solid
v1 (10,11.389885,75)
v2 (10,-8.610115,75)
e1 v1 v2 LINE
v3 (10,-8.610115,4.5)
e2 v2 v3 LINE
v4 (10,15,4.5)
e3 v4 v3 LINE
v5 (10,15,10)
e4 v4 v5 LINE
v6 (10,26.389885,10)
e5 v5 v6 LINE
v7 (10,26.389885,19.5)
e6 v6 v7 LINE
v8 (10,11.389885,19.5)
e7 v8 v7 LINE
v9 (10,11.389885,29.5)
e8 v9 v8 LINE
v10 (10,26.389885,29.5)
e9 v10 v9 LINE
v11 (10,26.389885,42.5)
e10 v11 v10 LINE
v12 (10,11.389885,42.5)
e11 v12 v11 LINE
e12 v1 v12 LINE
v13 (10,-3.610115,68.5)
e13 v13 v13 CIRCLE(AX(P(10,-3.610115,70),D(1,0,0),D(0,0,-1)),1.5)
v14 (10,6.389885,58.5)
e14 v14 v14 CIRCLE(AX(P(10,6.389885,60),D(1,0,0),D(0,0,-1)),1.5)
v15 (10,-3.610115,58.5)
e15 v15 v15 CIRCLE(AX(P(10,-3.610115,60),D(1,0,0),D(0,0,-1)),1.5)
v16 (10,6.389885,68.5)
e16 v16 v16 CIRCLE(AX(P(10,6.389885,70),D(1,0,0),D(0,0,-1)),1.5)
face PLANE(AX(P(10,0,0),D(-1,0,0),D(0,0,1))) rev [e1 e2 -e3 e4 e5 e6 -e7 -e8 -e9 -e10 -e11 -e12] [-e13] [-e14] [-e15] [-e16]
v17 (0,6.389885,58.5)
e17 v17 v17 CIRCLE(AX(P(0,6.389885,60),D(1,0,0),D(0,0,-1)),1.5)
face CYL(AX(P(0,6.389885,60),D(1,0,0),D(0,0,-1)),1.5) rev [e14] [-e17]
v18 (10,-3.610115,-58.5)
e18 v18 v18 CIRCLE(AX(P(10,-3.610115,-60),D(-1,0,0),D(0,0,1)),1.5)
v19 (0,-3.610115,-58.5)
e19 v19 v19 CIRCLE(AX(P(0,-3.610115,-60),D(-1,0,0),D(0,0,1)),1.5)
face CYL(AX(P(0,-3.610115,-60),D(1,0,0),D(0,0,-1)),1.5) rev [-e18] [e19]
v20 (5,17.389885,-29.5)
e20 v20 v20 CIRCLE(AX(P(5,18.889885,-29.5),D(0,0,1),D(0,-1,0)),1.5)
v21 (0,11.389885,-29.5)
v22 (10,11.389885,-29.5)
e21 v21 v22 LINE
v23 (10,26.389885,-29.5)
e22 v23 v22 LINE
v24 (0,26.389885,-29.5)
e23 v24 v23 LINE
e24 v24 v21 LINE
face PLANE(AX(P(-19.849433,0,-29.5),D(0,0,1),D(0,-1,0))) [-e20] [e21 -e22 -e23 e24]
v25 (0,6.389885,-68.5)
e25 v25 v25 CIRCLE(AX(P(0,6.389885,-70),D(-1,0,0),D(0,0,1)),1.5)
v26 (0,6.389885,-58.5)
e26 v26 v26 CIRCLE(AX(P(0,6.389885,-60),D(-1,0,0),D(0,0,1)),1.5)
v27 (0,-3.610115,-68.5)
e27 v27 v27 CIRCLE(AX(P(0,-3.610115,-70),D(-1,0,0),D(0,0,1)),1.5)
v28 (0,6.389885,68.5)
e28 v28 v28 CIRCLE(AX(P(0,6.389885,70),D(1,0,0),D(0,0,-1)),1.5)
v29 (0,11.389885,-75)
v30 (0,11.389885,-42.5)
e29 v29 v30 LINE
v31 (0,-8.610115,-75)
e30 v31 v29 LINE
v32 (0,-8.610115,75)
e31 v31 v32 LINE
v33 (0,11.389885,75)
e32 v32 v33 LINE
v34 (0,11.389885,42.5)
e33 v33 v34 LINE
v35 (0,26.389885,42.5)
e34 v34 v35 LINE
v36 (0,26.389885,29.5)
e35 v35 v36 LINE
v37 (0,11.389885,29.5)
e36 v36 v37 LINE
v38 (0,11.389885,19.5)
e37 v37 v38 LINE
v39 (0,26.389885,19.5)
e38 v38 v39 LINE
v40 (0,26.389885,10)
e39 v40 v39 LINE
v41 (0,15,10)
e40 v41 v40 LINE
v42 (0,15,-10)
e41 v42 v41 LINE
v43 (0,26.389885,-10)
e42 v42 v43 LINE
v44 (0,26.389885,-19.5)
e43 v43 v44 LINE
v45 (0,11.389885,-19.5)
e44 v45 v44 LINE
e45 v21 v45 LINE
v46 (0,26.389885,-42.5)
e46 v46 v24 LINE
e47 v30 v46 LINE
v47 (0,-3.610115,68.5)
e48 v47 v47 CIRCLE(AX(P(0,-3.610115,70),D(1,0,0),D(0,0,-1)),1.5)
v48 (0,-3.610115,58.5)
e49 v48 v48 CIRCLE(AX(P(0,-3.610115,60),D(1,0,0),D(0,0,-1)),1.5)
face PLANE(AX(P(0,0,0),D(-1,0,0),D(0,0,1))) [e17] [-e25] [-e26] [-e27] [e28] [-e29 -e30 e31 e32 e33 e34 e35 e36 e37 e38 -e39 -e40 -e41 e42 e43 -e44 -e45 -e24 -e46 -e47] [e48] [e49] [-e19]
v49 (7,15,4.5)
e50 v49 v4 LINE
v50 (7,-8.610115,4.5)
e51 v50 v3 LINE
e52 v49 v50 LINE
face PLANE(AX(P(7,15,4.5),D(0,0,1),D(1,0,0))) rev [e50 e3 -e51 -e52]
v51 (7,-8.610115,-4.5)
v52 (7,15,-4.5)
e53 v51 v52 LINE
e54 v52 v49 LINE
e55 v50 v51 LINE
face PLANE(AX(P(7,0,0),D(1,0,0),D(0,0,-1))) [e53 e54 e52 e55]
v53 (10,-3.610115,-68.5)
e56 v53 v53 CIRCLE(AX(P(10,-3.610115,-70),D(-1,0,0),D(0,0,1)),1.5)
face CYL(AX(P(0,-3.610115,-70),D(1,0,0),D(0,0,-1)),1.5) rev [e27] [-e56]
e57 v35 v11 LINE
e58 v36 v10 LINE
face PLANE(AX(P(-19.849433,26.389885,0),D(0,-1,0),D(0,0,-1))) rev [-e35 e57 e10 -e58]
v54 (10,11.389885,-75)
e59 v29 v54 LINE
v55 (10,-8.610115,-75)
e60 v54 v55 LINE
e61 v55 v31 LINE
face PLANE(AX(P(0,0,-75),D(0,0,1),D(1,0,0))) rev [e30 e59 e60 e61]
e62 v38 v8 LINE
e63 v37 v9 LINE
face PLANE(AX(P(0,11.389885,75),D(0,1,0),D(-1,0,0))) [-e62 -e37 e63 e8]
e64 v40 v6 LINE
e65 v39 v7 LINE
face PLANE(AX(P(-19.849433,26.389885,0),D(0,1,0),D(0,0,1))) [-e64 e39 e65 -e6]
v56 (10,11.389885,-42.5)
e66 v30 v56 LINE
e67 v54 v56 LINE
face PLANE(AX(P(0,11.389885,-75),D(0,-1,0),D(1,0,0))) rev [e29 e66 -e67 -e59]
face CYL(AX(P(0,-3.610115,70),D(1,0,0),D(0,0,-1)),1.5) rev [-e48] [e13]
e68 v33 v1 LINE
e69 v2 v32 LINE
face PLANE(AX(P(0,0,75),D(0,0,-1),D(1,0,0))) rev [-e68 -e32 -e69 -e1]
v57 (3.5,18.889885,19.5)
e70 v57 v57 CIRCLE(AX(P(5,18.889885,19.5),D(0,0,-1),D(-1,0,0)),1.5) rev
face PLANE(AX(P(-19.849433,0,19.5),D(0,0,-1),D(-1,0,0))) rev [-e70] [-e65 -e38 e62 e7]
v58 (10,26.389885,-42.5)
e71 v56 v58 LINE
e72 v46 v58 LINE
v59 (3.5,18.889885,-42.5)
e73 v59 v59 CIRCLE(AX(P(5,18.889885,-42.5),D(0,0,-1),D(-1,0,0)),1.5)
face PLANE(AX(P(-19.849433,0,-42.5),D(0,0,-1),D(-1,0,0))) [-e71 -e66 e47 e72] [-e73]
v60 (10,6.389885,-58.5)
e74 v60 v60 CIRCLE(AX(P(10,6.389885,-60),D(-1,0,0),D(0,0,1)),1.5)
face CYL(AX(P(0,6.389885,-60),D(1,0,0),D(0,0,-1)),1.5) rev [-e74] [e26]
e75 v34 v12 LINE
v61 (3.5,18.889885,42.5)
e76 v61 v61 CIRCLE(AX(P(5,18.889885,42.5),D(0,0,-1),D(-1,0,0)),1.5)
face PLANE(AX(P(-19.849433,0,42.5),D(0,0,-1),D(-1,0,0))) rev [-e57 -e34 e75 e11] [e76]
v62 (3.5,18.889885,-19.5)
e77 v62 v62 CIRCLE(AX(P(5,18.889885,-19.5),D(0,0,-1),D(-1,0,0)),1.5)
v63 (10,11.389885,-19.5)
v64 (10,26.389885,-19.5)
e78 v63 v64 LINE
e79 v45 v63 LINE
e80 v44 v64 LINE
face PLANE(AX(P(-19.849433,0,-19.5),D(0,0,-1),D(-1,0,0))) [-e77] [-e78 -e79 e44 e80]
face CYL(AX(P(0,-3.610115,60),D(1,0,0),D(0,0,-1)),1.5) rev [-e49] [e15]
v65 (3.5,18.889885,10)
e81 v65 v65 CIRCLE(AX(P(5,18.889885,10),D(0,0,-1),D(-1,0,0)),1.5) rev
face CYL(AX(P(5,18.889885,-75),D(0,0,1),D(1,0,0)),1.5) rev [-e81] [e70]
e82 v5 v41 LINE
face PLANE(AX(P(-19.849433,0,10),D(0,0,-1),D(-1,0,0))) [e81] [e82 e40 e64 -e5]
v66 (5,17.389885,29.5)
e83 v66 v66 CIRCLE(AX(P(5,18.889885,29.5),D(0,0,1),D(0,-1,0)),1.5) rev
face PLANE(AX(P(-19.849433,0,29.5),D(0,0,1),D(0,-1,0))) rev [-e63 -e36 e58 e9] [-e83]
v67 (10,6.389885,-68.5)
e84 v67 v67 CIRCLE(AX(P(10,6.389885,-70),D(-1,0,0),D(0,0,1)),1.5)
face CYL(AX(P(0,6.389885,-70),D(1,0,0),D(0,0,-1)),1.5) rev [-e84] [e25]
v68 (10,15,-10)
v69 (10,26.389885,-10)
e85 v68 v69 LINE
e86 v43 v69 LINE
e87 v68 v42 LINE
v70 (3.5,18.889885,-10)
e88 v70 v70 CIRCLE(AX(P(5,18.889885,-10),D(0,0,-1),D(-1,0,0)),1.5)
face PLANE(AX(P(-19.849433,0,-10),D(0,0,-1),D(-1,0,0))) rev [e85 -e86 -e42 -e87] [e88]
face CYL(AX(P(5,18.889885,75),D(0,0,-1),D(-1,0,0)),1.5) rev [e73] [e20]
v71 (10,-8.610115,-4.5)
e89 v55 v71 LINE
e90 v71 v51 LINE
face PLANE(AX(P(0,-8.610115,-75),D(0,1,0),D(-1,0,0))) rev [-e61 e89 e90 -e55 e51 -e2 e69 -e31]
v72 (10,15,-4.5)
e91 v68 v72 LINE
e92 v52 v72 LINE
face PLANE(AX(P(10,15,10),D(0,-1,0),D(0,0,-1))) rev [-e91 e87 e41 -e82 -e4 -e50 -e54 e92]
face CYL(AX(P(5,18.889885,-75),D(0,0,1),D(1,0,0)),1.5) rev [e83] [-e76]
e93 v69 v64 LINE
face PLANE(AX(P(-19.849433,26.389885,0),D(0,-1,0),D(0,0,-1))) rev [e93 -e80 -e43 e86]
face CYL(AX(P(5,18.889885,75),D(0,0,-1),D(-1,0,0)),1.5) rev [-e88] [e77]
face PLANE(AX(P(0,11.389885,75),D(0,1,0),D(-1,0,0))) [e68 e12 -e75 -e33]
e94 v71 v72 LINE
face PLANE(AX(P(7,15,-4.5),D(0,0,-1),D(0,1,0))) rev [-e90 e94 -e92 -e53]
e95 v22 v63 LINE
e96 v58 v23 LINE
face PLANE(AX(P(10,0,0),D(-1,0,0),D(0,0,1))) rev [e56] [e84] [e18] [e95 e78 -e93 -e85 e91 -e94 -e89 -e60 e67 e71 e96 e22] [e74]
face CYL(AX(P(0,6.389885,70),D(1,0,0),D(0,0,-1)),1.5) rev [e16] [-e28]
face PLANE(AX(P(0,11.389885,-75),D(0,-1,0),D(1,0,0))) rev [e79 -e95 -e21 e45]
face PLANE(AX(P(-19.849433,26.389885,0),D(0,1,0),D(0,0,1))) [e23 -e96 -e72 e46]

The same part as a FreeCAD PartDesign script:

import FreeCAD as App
import Part
import Sketcher
from FreeCAD import Vector

doc = App.newDocument("Part")
body = doc.addObject("PartDesign::Body", "Body")

# Sketch on YZ plane
sketch1 = body.newObject("Sketcher::SketchObject", "Sketch")
sketch1.AttachmentSupport = (doc.getObject("YZ_Plane"), [""])
sketch1.MapMode = "FlatFace"
sketch1.addGeometry([
    Part.LineSegment(Vector(15, 10, 0), Vector(-15, 10, 0)),
    Part.LineSegment(Vector(-15, 10, 0), Vector(-15, -10, 0)),
    Part.LineSegment(Vector(-15, -10, 0), Vector(15, -10, 0)),
    Part.LineSegment(Vector(15, -10, 0), Vector(15, 10, 0)),
], False)
sketch1.addConstraint([
    Sketcher.Constraint("Coincident", 0, 2, 1, 1),
    Sketcher.Constraint("Coincident", 1, 2, 2, 1),
    Sketcher.Constraint("Coincident", 2, 2, 3, 1),
    Sketcher.Constraint("Coincident", 3, 2, 0, 1),
    Sketcher.Constraint("Horizontal", 0),
    Sketcher.Constraint("Vertical", 1),
    Sketcher.Constraint("Horizontal", 2),
    Sketcher.Constraint("Vertical", 3),
    Sketcher.Constraint("Symmetric", 0, 2, 2, 2, -1, 1),
    Sketcher.Constraint("DistanceX", 0, 2, 0, 1, 30.0),
    Sketcher.Constraint("DistanceY", 1, 2, 1, 1, 20.0),
])
pad1 = body.newObject("PartDesign::Pad", "Pad")
pad1.Profile = sketch1
pad1.Length = 10

# Sketch on XY plane
sketch2 = body.newObject("Sketcher::SketchObject", "Sketch001")
sketch2.AttachmentSupport = (doc.getObject("XY_Plane"), [""])
sketch2.MapMode = "FlatFace"
sketch2.AttachmentOffset = App.Placement(Vector(0, 0, -10), App.Rotation())
sketch2.addGeometry([
    Part.LineSegment(Vector(10, 11, 0), Vector(10, -9, 0)),
    Part.LineSegment(Vector(10, -9, 0), Vector(0, -9, 0)),
    Part.LineSegment(Vector(0, -9, 0), Vector(0, 11, 0)),
    Part.LineSegment(Vector(0, 11, 0), Vector(10, 11, 0)),
], False)
sketch2.addConstraint([
    Sketcher.Constraint("Coincident", 0, 2, 1, 1),
    Sketcher.Constraint("Coincident", 1, 2, 2, 1),
    Sketcher.Constraint("Coincident", 2, 2, 3, 1),
    Sketcher.Constraint("Coincident", 3, 2, 0, 1),
    Sketcher.Constraint("Vertical", 0),
    Sketcher.Constraint("Horizontal", 1),
    Sketcher.Constraint("Vertical", 2),
    Sketcher.Constraint("Horizontal", 3),
    Sketcher.Constraint("PointOnObject", 1, 2, -2),
    Sketcher.Constraint("DistanceX", 1, 2, 1, 1, 10.0),
    Sketcher.Constraint("DistanceY", 0, 2, 0, 1, 20.0),
    Sketcher.Constraint("DistanceY", 0, 2, -1, 1, 8.610115),
])
pad2 = body.newObject("PartDesign::Pad", "Pad001")
pad2.Profile = sketch2
pad2.Length = 65
pad2.Reversed = True
doc.recompute()

mirrored = body.newObject("PartDesign::Mirrored", "Mirrored")
mirrored.Originals = [pad2]
mirrored.MirrorPlane = (doc.getObject("XY_Plane"), [""])
body.Tip = mirrored

# Sketch on YZ plane
sketch3 = body.newObject("Sketcher::SketchObject", "Sketch002")
sketch3.AttachmentSupport = (doc.getObject("YZ_Plane"), [""])
sketch3.MapMode = "FlatFace"
sketch3.AttachmentOffset = App.Placement(Vector(0, 0, 10), App.Rotation())
sketch3.addGeometry([
    Part.Circle(Vector(6.4, 70, 0), Vector(0, 0, 1), 1.5),
    Part.Circle(Vector(6.4, 60, 0), Vector(0, 0, 1), 1.5),
    Part.Circle(Vector(-3.6, 70, 0), Vector(0, 0, 1), 1.5),
    Part.Circle(Vector(-3.6, 60, 0), Vector(0, 0, 1), 1.5),
], False)
sketch3.addConstraint([
    Sketcher.Constraint("Equal", 0, 1),
    Sketcher.Constraint("Equal", 1, 2),
    Sketcher.Constraint("Equal", 2, 3),
    Sketcher.Constraint("Horizontal", 0, 3, 2, 3),
    Sketcher.Constraint("Horizontal", 1, 3, 3, 3),
    Sketcher.Constraint("Vertical", 0, 3, 1, 3),
    Sketcher.Constraint("Vertical", 2, 3, 3, 3),
    Sketcher.Constraint("Diameter", 0, 3.0),
    Sketcher.Constraint("DistanceY", -1, 1, 0, 3, 70.0),
    Sketcher.Constraint("DistanceY", -1, 1, 1, 3, 60.0),
    Sketcher.Constraint("DistanceX", 2, 3, 0, 3, 10.0),
    Sketcher.Constraint("DistanceX", -1, 1, 0, 3, 6.389885),
])
pocket1 = body.newObject("PartDesign::Pocket", "Pocket")
pocket1.Profile = sketch3
pocket1.Type = "ThroughAll"
doc.recompute()

mirrored2 = body.newObject("PartDesign::Mirrored", "Mirrored001")
mirrored2.Originals = [pocket1]
mirrored2.MirrorPlane = (doc.getObject("XY_Plane"), [""])
body.Tip = mirrored2

# Sketch on YZ plane
sketch4 = body.newObject("Sketcher::SketchObject", "Sketch003")
sketch4.AttachmentSupport = (doc.getObject("YZ_Plane"), [""])
sketch4.MapMode = "FlatFace"
sketch4.AttachmentOffset = App.Placement(Vector(0, 0, 10), App.Rotation())
sketch4.addGeometry([
    Part.LineSegment(Vector(15, 4, 0), Vector(-15, 4, 0)),
    Part.LineSegment(Vector(-15, 4, 0), Vector(-15, -4, 0)),
    Part.LineSegment(Vector(-15, -4, 0), Vector(15, -4, 0)),
    Part.LineSegment(Vector(15, -4, 0), Vector(15, 4, 0)),
], False)
sketch4.addConstraint([
    Sketcher.Constraint("Coincident", 0, 2, 1, 1),
    Sketcher.Constraint("Coincident", 1, 2, 2, 1),
    Sketcher.Constraint("Coincident", 2, 2, 3, 1),
    Sketcher.Constraint("Coincident", 3, 2, 0, 1),
    Sketcher.Constraint("Horizontal", 0),
    Sketcher.Constraint("Vertical", 1),
    Sketcher.Constraint("Horizontal", 2),
    Sketcher.Constraint("Vertical", 3),
    Sketcher.Constraint("Symmetric", 0, 2, 2, 2, -1, 1),
    Sketcher.Constraint("DistanceX", 0, 2, 0, 1, 30.0),
    Sketcher.Constraint("DistanceY", 1, 2, 1, 1, 9.0),
])
pocket2 = body.newObject("PartDesign::Pocket", "Pocket001")
pocket2.Profile = sketch4
pocket2.Length = 3

# Sketch on YZ plane
sketch5 = body.newObject("Sketcher::SketchObject", "Sketch004")
sketch5.AttachmentSupport = (doc.getObject("YZ_Plane"), [""])
sketch5.MapMode = "FlatFace"
sketch5.AttachmentOffset = App.Placement(Vector(0, 0, 10), App.Rotation())
sketch5.addGeometry([
    Part.LineSegment(Vector(26, -30, 0), Vector(11, -30, 0)),  # 0
    Part.LineSegment(Vector(11, -30, 0), Vector(11, -42, 0)),  # 1
    Part.LineSegment(Vector(11, -42, 0), Vector(26, -42, 0)),  # 2
    Part.LineSegment(Vector(26, -42, 0), Vector(26, -30, 0)),  # 3
    Part.LineSegment(Vector(11, -10, 0), Vector(11, -20, 0)),  # 4
    Part.LineSegment(Vector(11, -20, 0), Vector(26, -20, 0)),  # 5
    Part.LineSegment(Vector(26, -20, 0), Vector(26, -10, 0)),  # 6
    Part.LineSegment(Vector(26, -10, 0), Vector(11, -10, 0)),  # 7
], False)
sketch5.addConstraint([
    Sketcher.Constraint("Coincident", 0, 2, 1, 1),
    Sketcher.Constraint("Coincident", 1, 2, 2, 1),
    Sketcher.Constraint("Coincident", 2, 2, 3, 1),
    Sketcher.Constraint("Coincident", 3, 2, 0, 1),
    Sketcher.Constraint("Coincident", 4, 2, 5, 1),
    Sketcher.Constraint("Coincident", 5, 2, 6, 1),
    Sketcher.Constraint("Coincident", 6, 2, 7, 1),
    Sketcher.Constraint("Coincident", 7, 2, 4, 1),
    Sketcher.Constraint("Horizontal", 0),
    Sketcher.Constraint("Vertical", 1),
    Sketcher.Constraint("Horizontal", 2),
    Sketcher.Constraint("Vertical", 3),
    Sketcher.Constraint("Vertical", 4),
    Sketcher.Constraint("Horizontal", 5),
    Sketcher.Constraint("Vertical", 6),
    Sketcher.Constraint("Horizontal", 7),
    Sketcher.Constraint("Vertical", 1, 2, 4, 2),
    Sketcher.Constraint("Vertical", 3, 2, 5, 2),
    Sketcher.Constraint("DistanceX", 0, 2, 0, 1, 15.0),
    Sketcher.Constraint("DistanceY", 1, 2, 1, 1, 13.0),
    Sketcher.Constraint("DistanceY", 4, 2, 4, 1, 9.5),
    Sketcher.Constraint("DistanceY", 6, 2, -1, 1, 10.0),
    Sketcher.Constraint("DistanceY", 0, 2, 4, 2, 10.0),
    Sketcher.Constraint("DistanceX", -1, 1, 0, 2, 11.389885),
])
pad3 = body.newObject("PartDesign::Pad", "Pad002")
pad3.Profile = sketch5
pad3.Length = 10
pad3.Reversed = True

# Sketch on XY plane
sketch6 = body.newObject("Sketcher::SketchObject", "Sketch005")
sketch6.AttachmentSupport = (doc.getObject("XY_Plane"), [""])
sketch6.MapMode = "FlatFace"
sketch6.AttachmentOffset = App.Placement(Vector(0, 0, -42.5), App.Rotation())
sketch6.addGeometry(Part.Circle(Vector(5, 18.9, 0), Vector(0, 0, 1), 1.5), False)
sketch6.addConstraint([
    Sketcher.Constraint("Diameter", 0, 3.0),
    Sketcher.Constraint("DistanceX", -1, 1, 0, 3, 5.0),
    Sketcher.Constraint("DistanceY", -1, 1, 0, 3, 18.889885),
])
pocket3 = body.newObject("PartDesign::Pocket", "Pocket002")
pocket3.Profile = sketch6
pocket3.Type = "ThroughAll"
pocket3.Reversed = True
doc.recompute()

mirrored3 = body.newObject("PartDesign::Mirrored", "Mirrored002")
mirrored3.Originals = [pad3, pocket3]
mirrored3.MirrorPlane = (doc.getObject("XY_Plane"), [""])
body.Tip = mirrored3

# Sketch on XZ plane
sketch7 = body.newObject("Sketcher::SketchObject", "Sketch006")
sketch7.AttachmentSupport = (doc.getObject("XZ_Plane"), [""])
sketch7.MapMode = "FlatFace"
sketch7.AttachmentOffset = App.Placement(Vector(0, 0, 15), App.Rotation())
sketch7.addGeometry([
    Part.LineSegment(Vector(-10, 10, 0), Vector(-10, -10, 0)),
    Part.LineSegment(Vector(-10, -10, 0), Vector(10, -10, 0)),
    Part.LineSegment(Vector(10, -10, 0), Vector(10, 10, 0)),
    Part.LineSegment(Vector(10, 10, 0), Vector(-10, 10, 0)),
], False)
sketch7.addConstraint([
    Sketcher.Constraint("Coincident", 0, 2, 1, 1),
    Sketcher.Constraint("Coincident", 1, 2, 2, 1),
    Sketcher.Constraint("Coincident", 2, 2, 3, 1),
    Sketcher.Constraint("Coincident", 3, 2, 0, 1),
    Sketcher.Constraint("Vertical", 0),
    Sketcher.Constraint("Horizontal", 1),
    Sketcher.Constraint("Vertical", 2),
    Sketcher.Constraint("Horizontal", 3),
    Sketcher.Constraint("Symmetric", 0, 2, 2, 2, -1, 1),
    Sketcher.Constraint("Equal", 3, 0),
    Sketcher.Constraint("DistanceX", 1, 1, 1, 2, 20.0),
])
pocket4 = body.newObject("PartDesign::Pocket", "Pocket003")
pocket4.Profile = sketch7
pocket4.Length = 6.389885

doc.recompute()
